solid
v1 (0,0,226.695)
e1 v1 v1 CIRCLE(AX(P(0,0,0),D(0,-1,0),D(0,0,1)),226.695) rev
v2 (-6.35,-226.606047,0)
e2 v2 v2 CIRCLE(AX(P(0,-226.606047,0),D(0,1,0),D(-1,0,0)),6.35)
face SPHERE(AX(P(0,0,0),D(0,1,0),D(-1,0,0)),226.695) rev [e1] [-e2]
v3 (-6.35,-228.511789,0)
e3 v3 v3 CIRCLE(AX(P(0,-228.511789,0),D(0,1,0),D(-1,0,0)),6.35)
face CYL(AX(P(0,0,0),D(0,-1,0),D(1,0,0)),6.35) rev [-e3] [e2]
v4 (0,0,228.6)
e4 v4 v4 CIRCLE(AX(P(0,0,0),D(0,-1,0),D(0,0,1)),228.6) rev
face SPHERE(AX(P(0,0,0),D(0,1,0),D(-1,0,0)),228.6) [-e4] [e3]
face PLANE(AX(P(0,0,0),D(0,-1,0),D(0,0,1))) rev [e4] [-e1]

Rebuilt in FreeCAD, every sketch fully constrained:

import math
import FreeCAD as App
import Part
import Sketcher

V = App.Vector
Q = App.Units.Quantity

doc = App.newDocument("Part")
body = doc.addObject("PartDesign::Body", "Body")

sketch1 = doc.addObject("Sketcher::SketchObject", "Sketch")
body.addObject(sketch1)
sketch1.AttachmentSupport = (doc.XZ_Plane, [""])
sketch1.MapMode = "FlatFace"
sketch1.addGeometry([
    Part.ArcOfCircle(Part.Circle(V(0, 0, 0), V(0, 0, 1), 228.6), math.radians(-90), math.radians(90)),
    Part.LineSegment(V(0, -228.6, 0), V(0, -226.7, 0)),
    Part.ArcOfCircle(Part.Circle(V(0, 0, 0), V(0, 0, 1), 226.7), math.radians(-90), math.radians(90)),
    Part.LineSegment(V(0, 226.7, 0), V(0, 228.6, 0)),
], False)
sketch1.addConstraint([
    Sketcher.Constraint("Coincident", 0, 1, 1, 1),
    Sketcher.Constraint("Coincident", 1, 2, 2, 1),
    Sketcher.Constraint("Coincident", 2, 2, 3, 1),
    Sketcher.Constraint("Coincident", 3, 2, 0, 2),
    Sketcher.Constraint("Vertical", 1),
    Sketcher.Constraint("Vertical", 3),
    Sketcher.Constraint("Coincident", 0, 3, -1, 1),
    Sketcher.Constraint("Coincident", 2, 3, -1, 1),
    Sketcher.Constraint("PointOnObject", 0, 1, -2),
    Sketcher.Constraint("PointOnObject", 2, 2, -2),
    Sketcher.Constraint("Radius", 0, Q("9 in")),
    Sketcher.Constraint("Radius", 2, Q("8.925 in")),
])
revolution = doc.addObject("PartDesign::Revolution", "Revolution")
body.addObject(revolution)
revolution.Profile = sketch1
revolution.ReferenceAxis = (sketch1, ["V_Axis"])
revolution.Angle = 180
revolution.Reversed = True

sketch2 = doc.addObject("Sketcher::SketchObject", "Sketch001")
body.addObject(sketch2)
sketch2.AttachmentSupport = (doc.XZ_Plane, [""])
sketch2.MapMode = "FlatFace"
sketch2.AttachmentOffset = App.Placement(V(0, 0, 9 * 25.4), App.Rotation())
sketch2.addGeometry(Part.Circle(V(0, 0, 0), V(0, 0, 1), 6), False)
sketch2.addConstraint([
    Sketcher.Constraint("Coincident", 0, 3, -1, 1),
    Sketcher.Constraint("Diameter", 0, Q("0.5 in")),
])
pocket1 = doc.addObject("PartDesign::Pocket", "Pocket")
body.addObject(pocket1)
pocket1.Profile = sketch2
pocket1.Type = "ThroughAll"

doc.recompute()
